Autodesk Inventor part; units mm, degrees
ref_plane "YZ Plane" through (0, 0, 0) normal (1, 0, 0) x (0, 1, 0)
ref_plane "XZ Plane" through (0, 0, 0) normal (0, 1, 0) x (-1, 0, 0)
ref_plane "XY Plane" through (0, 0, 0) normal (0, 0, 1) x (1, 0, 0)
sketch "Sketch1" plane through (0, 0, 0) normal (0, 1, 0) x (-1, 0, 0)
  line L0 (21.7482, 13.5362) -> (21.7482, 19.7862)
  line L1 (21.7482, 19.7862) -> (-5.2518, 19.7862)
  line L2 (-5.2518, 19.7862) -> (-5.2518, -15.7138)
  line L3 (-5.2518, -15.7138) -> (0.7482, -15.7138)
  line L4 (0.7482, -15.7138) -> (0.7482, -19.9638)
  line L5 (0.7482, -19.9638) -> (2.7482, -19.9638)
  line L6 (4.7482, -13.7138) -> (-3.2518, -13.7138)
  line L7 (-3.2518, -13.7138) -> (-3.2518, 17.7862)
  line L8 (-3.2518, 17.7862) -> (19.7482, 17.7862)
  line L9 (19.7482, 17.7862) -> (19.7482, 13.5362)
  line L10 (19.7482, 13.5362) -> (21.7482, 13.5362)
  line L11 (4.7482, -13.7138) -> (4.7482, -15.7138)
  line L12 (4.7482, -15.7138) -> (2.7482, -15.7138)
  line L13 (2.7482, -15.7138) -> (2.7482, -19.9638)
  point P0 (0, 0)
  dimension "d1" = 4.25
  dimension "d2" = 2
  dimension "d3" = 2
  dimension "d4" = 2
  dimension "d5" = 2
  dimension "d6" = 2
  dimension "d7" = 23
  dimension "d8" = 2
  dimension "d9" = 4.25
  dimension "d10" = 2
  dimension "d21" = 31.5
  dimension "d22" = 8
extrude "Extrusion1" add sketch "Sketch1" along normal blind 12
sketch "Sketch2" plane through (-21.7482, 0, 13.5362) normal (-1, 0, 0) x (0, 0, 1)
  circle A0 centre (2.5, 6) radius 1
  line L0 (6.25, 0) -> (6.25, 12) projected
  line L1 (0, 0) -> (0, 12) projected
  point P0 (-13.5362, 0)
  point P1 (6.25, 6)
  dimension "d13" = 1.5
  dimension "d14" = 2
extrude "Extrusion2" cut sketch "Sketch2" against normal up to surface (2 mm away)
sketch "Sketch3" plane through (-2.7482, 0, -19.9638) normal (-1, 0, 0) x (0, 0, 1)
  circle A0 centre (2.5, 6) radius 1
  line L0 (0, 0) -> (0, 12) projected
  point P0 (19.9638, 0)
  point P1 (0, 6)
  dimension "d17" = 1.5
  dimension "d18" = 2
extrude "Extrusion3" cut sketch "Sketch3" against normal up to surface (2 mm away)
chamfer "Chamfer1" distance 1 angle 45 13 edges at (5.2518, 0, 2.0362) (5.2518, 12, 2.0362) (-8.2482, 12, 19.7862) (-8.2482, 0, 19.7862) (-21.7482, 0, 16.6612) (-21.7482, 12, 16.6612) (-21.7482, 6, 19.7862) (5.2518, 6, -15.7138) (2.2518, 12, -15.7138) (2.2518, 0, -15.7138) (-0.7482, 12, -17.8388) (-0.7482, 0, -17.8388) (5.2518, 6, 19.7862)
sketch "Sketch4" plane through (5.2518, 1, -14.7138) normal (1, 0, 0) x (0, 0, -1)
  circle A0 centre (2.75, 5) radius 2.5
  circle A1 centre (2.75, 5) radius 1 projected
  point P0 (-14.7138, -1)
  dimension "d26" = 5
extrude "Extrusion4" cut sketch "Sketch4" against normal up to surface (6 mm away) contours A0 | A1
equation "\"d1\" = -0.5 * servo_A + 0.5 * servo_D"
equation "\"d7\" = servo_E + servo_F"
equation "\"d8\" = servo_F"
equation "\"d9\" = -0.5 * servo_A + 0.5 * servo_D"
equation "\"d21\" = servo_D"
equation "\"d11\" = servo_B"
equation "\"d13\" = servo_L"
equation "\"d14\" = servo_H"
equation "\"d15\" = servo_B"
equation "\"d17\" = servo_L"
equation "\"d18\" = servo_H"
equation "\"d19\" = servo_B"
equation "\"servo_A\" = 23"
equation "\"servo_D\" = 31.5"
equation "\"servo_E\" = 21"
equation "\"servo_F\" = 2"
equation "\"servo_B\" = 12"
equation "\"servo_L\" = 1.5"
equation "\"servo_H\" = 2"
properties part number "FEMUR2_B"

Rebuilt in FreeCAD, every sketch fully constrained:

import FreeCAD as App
import Part
import Sketcher
from FreeCAD import Vector
Q = App.Units.Quantity


def edges_at(feature, points):
    """Names of the edges that pass closest to the given points."""
    edges = feature.Shape.Edges
    near = lambda p: min(range(len(edges)), key=lambda i: edges[i].distToShape(Part.Vertex(*p))[0])
    return sorted({f"Edge{near(p) + 1}" for p in points})

doc = App.newDocument("Part")
body = doc.addObject("PartDesign::Body", "Body")

# Sketch on XZ plane
sketch1 = body.newObject("Sketcher::SketchObject", "Sketch")
sketch1.AttachmentSupport = (doc.getObject("XZ_Plane"), [""])
sketch1.MapMode = "FlatFace"
sketch1.addGeometry(Part.LineSegment(Vector(-19.7482, 13.5362, 0), Vector(-21.7482, 13.5362, 0)), False)
sketch1.addGeometry(Part.LineSegment(Vector(-21.7482, 13.5362, 0), Vector(-21.7482, 19.7862, 0)), False)
sketch1.addGeometry(Part.LineSegment(Vector(-21.7482, 19.7862, 0), Vector(5.2518, 19.7862, 0)), False)
sketch1.addGeometry(Part.LineSegment(Vector(5.2518, 19.7862, 0), Vector(5.2518, -15.7138, 0)), False)
sketch1.addGeometry(Part.LineSegment(Vector(5.2518, -15.7138, 0), Vector(-0.7482, -15.7138, 0)), False)
sketch1.addGeometry(Part.LineSegment(Vector(-0.7482, -15.7138, 0), Vector(-0.7482, -19.9638, 0)), False)
sketch1.addGeometry(Part.LineSegment(Vector(-0.7482, -19.9638, 0), Vector(-2.7482, -19.9638, 0)), False)
sketch1.addGeometry(Part.LineSegment(Vector(-2.7482, -19.9638, 0), Vector(-2.7482, -15.7138, 0)), False)
sketch1.addGeometry(Part.LineSegment(Vector(-2.7482, -15.7138, 0), Vector(-4.7482, -15.7138, 0)), False)
sketch1.addGeometry(Part.LineSegment(Vector(-4.7482, -15.7138, 0), Vector(-4.7482, -13.7138, 0)), False)
sketch1.addGeometry(Part.LineSegment(Vector(-4.7482, -13.7138, 0), Vector(3.2518, -13.7138, 0)), False)
sketch1.addGeometry(Part.LineSegment(Vector(3.2518, -13.7138, 0), Vector(3.2518, 17.7862, 0)), False)
sketch1.addGeometry(Part.LineSegment(Vector(3.2518, 17.7862, 0), Vector(-19.7482, 17.7862, 0)), False)
sketch1.addGeometry(Part.LineSegment(Vector(-19.7482, 17.7862, 0), Vector(-19.7482, 13.5362, 0)), False)
sketch1.addConstraint(Sketcher.Constraint("Coincident", 0, 2, 1, 1))
sketch1.addConstraint(Sketcher.Constraint("Coincident", 1, 2, 2, 1))
sketch1.addConstraint(Sketcher.Constraint("Coincident", 2, 2, 3, 1))
sketch1.addConstraint(Sketcher.Constraint("Coincident", 3, 2, 4, 1))
sketch1.addConstraint(Sketcher.Constraint("Coincident", 4, 2, 5, 1))
sketch1.addConstraint(Sketcher.Constraint("Coincident", 5, 2, 6, 1))
sketch1.addConstraint(Sketcher.Constraint("Coincident", 6, 2, 7, 1))
sketch1.addConstraint(Sketcher.Constraint("Coincident", 7, 2, 8, 1))
sketch1.addConstraint(Sketcher.Constraint("Coincident", 8, 2, 9, 1))
sketch1.addConstraint(Sketcher.Constraint("Coincident", 9, 2, 10, 1))
sketch1.addConstraint(Sketcher.Constraint("Coincident", 10, 2, 11, 1))
sketch1.addConstraint(Sketcher.Constraint("Coincident", 11, 2, 12, 1))
sketch1.addConstraint(Sketcher.Constraint("Coincident", 12, 2, 13, 1))
sketch1.addConstraint(Sketcher.Constraint("Coincident", 13, 2, 0, 1))
sketch1.addConstraint(Sketcher.Constraint("Horizontal", 0))
sketch1.addConstraint(Sketcher.Constraint("Vertical", 1))
sketch1.addConstraint(Sketcher.Constraint("Horizontal", 2))
sketch1.addConstraint(Sketcher.Constraint("Vertical", 3))
sketch1.addConstraint(Sketcher.Constraint("Horizontal", 4))
sketch1.addConstraint(Sketcher.Constraint("Vertical", 5))
sketch1.addConstraint(Sketcher.Constraint("Horizontal", 6))
sketch1.addConstraint(Sketcher.Constraint("Vertical", 7))
sketch1.addConstraint(Sketcher.Constraint("Horizontal", 8))
sketch1.addConstraint(Sketcher.Constraint("Vertical", 9))
sketch1.addConstraint(Sketcher.Constraint("Horizontal", 10))
sketch1.addConstraint(Sketcher.Constraint("Vertical", 11))
sketch1.addConstraint(Sketcher.Constraint("Horizontal", 12))
sketch1.addConstraint(Sketcher.Constraint("Vertical", 13))
sketch1.addConstraint(Sketcher.Constraint("Horizontal", 4, 2, 7, 2))
sketch1.addConstraint(Sketcher.Constraint("Equal", 0, 6))
sketch1.addConstraint(Sketcher.Constraint("Equal", 6, 8))
sketch1.addConstraint(Sketcher.Constraint("Equal", 8, 9))
sketch1.addConstraint(Sketcher.Constraint("Equal", 7, 13))
sketch1.addConstraint(Sketcher.Constraint("DistanceX", 0, 2, 0, 1, Q("2 mm")))
sketch1.addConstraint(Sketcher.Constraint("DistanceX", 10, 1, 10, 2, Q("8 mm")))
sketch1.addConstraint(Sketcher.Constraint("DistanceX", 12, 2, 12, 1, Q("23 mm")))
sketch1.addConstraint(Sketcher.Constraint("DistanceY", 11, 1, 11, 2, Q("31.5 mm")))
sketch1.addConstraint(Sketcher.Constraint("DistanceX", 6, 2, 3, 2, Q("8 mm")))
sketch1.addConstraint(Sketcher.Constraint("DistanceY", 11, 2, 2, 2, Q("2 mm")))
sketch1.addConstraint(Sketcher.Constraint("DistanceY", 5, 2, 5, 1, Q("4.25 mm")))
sketch1.addConstraint(Sketcher.Constraint("DistanceX", 0, 2, -1, 1, Q("21.7482 mm")))
sketch1.addConstraint(Sketcher.Constraint("DistanceY", -1, 1, 0, 2, Q("13.5362 mm")))
pad1 = body.newObject("PartDesign::Pad", "Pad")
pad1.Profile = sketch1
pad1.Length = 12
pad1.Reversed = True

# Sketch on YZ plane
sketch2 = body.newObject("Sketcher::SketchObject", "Sketch001")
sketch2.AttachmentSupport = (doc.getObject("YZ_Plane"), [""])
sketch2.MapMode = "FlatFace"
sketch2.AttachmentOffset = App.Placement(Vector(0, 0, -21.7482), App.Rotation())
sketch2.addGeometry(Part.Circle(Vector(6, 16.0362, 0), Vector(0, 0, 1), 1), False)
sketch2.addConstraint(Sketcher.Constraint("Diameter", 0, Q("2 mm")))
sketch2.addConstraint(Sketcher.Constraint("DistanceX", -1, 1, 0, 3, Q("6 mm")))
sketch2.addConstraint(Sketcher.Constraint("DistanceY", -1, 1, 0, 3, Q("16.0362 mm")))
pocket1 = body.newObject("PartDesign::Pocket", "Pocket")
pocket1.Profile = sketch2
pocket1.Length = 2
pocket1.Reversed = True

# Sketch on YZ plane
sketch3 = body.newObject("Sketcher::SketchObject", "Sketch002")
sketch3.AttachmentSupport = (doc.getObject("YZ_Plane"), [""])
sketch3.MapMode = "FlatFace"
sketch3.AttachmentOffset = App.Placement(Vector(0, 0, -2.7482), App.Rotation())
sketch3.addGeometry(Part.Circle(Vector(6, -17.4638, 0), Vector(0, 0, 1), 1), False)
sketch3.addConstraint(Sketcher.Constraint("Diameter", 0, Q("2 mm")))
sketch3.addConstraint(Sketcher.Constraint("DistanceX", -1, 1, 0, 3, Q("6 mm")))
sketch3.addConstraint(Sketcher.Constraint("DistanceY", 0, 3, -1, 1, Q("17.4638 mm")))
pocket2 = body.newObject("PartDesign::Pocket", "Pocket001")
pocket2.Profile = sketch3
pocket2.Length = 2
pocket2.Reversed = True
doc.recompute()

chamfer = body.newObject("PartDesign::Chamfer", "Chamfer")
chamfer.Base = (pocket2, edges_at(pocket2, [
    (5.252, 0, 2.036),
    (5.252, 12, 2.036),
    (-8.248, 12, 19.786),
    (-8.248, 0, 19.786),
    (-21.748, 0, 16.661),
    (-21.748, 12, 16.661),
    (-21.748, 6, 19.786),
    (5.252, 6, -15.714),
    (2.252, 12, -15.714),
    (2.252, 0, -15.714),
    (-0.748, 12, -17.839),
    (-0.748, 0, -17.839),
    (5.252, 6, 19.786),
]))
chamfer.Size = 1

# Sketch on YZ plane
sketch4 = body.newObject("Sketcher::SketchObject", "Sketch003")
sketch4.AttachmentSupport = (doc.getObject("YZ_Plane"), [""])
sketch4.MapMode = "FlatFace"
sketch4.AttachmentOffset = App.Placement(Vector(0, 0, 5.2518), App.Rotation())
sketch4.addGeometry(Part.Circle(Vector(6, -17.4638, 0), Vector(0, 0, 1), 2.5), False)
sketch4.addConstraint(Sketcher.Constraint("Diameter", 0, Q("5 mm")))
sketch4.addConstraint(Sketcher.Constraint("DistanceX", -1, 1, 0, 3, Q("6 mm")))
sketch4.addConstraint(Sketcher.Constraint("DistanceY", 0, 3, -1, 1, Q("17.4638 mm")))
pocket3 = body.newObject("PartDesign::Pocket", "Pocket002")
pocket3.Profile = sketch4
pocket3.Length = 6

doc.recompute()
